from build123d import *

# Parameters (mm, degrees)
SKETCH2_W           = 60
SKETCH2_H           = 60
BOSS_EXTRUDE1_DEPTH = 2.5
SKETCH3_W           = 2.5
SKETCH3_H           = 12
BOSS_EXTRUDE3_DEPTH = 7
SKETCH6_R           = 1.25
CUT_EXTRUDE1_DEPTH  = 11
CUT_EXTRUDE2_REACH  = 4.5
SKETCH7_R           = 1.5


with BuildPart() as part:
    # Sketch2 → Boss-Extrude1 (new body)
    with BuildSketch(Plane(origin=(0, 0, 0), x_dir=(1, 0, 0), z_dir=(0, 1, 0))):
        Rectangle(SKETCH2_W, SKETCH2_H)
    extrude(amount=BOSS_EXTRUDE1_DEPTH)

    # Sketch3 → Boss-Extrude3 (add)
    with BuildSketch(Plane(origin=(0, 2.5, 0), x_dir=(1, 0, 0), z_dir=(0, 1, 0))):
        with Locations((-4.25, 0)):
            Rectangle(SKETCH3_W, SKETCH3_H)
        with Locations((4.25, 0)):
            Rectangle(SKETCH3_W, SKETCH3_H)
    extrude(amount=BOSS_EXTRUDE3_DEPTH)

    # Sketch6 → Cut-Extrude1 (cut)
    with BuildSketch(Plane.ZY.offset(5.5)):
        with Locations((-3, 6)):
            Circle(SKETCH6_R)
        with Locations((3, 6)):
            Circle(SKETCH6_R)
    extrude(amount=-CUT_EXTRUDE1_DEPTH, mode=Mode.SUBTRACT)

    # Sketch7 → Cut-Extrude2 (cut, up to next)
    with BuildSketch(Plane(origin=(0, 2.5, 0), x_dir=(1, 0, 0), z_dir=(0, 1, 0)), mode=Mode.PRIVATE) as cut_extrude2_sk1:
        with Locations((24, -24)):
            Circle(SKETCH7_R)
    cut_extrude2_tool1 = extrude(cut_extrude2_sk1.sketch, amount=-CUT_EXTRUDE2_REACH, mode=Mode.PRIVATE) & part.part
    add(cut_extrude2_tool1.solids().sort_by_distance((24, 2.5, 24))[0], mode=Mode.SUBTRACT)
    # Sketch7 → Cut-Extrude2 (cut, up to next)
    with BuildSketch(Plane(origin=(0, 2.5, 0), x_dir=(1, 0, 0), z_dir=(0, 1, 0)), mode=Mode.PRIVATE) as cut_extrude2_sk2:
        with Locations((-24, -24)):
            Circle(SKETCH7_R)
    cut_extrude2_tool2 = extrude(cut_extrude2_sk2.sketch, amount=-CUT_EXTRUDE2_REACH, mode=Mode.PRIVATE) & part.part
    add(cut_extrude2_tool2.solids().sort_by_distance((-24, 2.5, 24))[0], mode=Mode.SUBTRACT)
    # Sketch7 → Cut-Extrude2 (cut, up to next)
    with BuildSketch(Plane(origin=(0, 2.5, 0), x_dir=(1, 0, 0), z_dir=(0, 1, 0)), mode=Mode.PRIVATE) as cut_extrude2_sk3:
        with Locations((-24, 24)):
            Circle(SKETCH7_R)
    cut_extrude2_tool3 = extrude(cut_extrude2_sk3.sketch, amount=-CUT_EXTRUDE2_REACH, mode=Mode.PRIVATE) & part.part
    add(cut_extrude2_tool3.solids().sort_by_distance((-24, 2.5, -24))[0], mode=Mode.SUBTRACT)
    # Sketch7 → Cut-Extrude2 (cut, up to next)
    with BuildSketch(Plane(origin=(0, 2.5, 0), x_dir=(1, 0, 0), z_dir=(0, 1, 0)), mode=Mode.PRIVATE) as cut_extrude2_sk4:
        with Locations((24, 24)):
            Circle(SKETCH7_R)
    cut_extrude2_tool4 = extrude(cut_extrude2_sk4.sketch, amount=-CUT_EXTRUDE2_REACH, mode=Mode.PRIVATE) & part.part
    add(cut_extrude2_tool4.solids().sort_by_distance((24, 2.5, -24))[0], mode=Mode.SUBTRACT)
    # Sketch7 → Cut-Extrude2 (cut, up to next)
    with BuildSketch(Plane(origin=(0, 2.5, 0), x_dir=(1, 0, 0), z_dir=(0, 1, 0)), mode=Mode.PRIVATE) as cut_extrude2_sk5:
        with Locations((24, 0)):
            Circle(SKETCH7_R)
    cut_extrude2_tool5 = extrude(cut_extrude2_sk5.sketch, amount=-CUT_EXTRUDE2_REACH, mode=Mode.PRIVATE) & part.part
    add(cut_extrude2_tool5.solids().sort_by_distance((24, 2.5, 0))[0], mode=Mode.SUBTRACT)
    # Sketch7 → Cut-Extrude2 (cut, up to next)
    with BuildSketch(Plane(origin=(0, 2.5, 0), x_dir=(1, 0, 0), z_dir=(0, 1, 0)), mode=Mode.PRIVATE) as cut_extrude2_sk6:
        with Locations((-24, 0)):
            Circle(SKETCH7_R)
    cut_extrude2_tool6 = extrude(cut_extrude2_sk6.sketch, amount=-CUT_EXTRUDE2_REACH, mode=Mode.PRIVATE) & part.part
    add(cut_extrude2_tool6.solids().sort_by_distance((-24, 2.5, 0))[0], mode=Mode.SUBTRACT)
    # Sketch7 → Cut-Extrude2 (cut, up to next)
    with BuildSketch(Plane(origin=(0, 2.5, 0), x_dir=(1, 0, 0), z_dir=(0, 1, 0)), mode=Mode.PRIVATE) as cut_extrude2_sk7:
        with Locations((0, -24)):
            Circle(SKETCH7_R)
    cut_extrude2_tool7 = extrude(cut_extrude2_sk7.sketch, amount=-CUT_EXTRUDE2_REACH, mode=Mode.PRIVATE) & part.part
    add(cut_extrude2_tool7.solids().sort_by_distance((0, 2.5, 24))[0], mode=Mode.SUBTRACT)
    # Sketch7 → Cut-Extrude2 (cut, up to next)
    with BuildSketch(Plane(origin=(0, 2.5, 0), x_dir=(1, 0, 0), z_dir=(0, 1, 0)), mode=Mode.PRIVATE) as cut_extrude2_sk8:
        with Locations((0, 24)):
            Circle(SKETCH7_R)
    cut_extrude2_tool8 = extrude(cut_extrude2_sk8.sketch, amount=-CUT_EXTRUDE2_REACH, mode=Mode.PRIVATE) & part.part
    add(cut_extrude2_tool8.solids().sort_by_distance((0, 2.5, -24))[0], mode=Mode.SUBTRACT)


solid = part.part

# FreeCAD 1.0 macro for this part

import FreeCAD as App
import Part
import Sketcher


def add_polygon(sketch, points):
    """Adds a closed chain of lines whose ends are joined by coincident constraints."""
    first, n = sketch.GeometryCount, len(points)
    for a, b in zip(points, points[1:] + points[:1]):
        sketch.addGeometry(Part.LineSegment(App.Vector(*a, 0), App.Vector(*b, 0)), False)
    for i in range(n):
        sketch.addConstraint(Sketcher.Constraint("Coincident", first + i, 2, first + (i + 1) % n, 1))

doc = App.newDocument("Part")
params = doc.addObject("Spreadsheet::Sheet", "Params")
for row, (alias, value) in enumerate([
    ("sketch1_width", "60 mm"),
    ("pad1_length", "2.5 mm"),
    ("sketch2_height", "12 mm"),
    ("sketch2_width", "2.5 mm"),
    ("pad2_length", "7 mm"),
    ("sketch3_diameter", "2.5 mm"),
    ("pocket1_length", "11 mm"),
    ("sketch4_diameter", "3 mm"),
    ("sketch5_diameter", "3 mm"),
    ("sketch6_diameter", "3 mm"),
    ("sketch7_diameter", "3 mm"),
    ("sketch8_diameter", "3 mm"),
    ("sketch9_diameter", "3 mm"),
    ("sketch10_diameter", "3 mm"),
    ("sketch11_diameter", "3 mm"),
], start=1):
    params.set(f"A{row}", alias)
    params.set(f"B{row}", "=" + value)
    params.setAlias(f"B{row}", alias)

body = doc.addObject("PartDesign::Body", "Body")

# Sketch on XZ plane
sketch1 = body.newObject("Sketcher::SketchObject", "Sketch")
sketch1.AttachmentSupport = (doc.getObject("XZ_Plane"), [""])
sketch1.MapMode = "FlatFace"
add_polygon(sketch1, [(-30, -30), (-30, 30), (30, 30), (30, -30)])  # lines 0-3
sketch1.addConstraint(Sketcher.Constraint("Vertical", 0))
sketch1.addConstraint(Sketcher.Constraint("Horizontal", 1))
sketch1.addConstraint(Sketcher.Constraint("Vertical", 2))
sketch1.addConstraint(Sketcher.Constraint("Horizontal", 3))
sketch1.addConstraint(Sketcher.Constraint("Symmetric", 0, 2, 2, 2, -1, 1))
sketch1.addConstraint(Sketcher.Constraint("Equal", 3, 0))
sketch1.addConstraint(Sketcher.Constraint("DistanceX", 1, 1, 1, 2, 60.0))
sketch1.setExpression("Constraints[10]", "Params.sketch1_width")
pad1 = body.newObject("PartDesign::Pad", "Pad")
pad1.Profile = sketch1
pad1.setExpression("Length", "Params.pad1_length")
pad1.Reversed = True

# Sketch on XZ plane
sketch2 = body.newObject("Sketcher::SketchObject", "Sketch001")
sketch2.AttachmentSupport = (doc.getObject("XZ_Plane"), [""])
sketch2.MapMode = "FlatFace"
sketch2.AttachmentOffset = App.Placement(App.Vector(0, 0, -2.5), App.Rotation())
add_polygon(sketch2, [(-5.5, -6), (-5.5, 6), (-3, 6), (-3, -6)])  # lines 0-3
add_polygon(sketch2, [(3, -6), (3, 6), (5.5, 6), (5.5, -6)])  # lines 4-7
sketch2.addConstraint(Sketcher.Constraint("Vertical", 0))
sketch2.addConstraint(Sketcher.Constraint("Horizontal", 1))
sketch2.addConstraint(Sketcher.Constraint("Vertical", 2))
sketch2.addConstraint(Sketcher.Constraint("Horizontal", 3))
sketch2.addConstraint(Sketcher.Constraint("Vertical", 4))
sketch2.addConstraint(Sketcher.Constraint("Horizontal", 5))
sketch2.addConstraint(Sketcher.Constraint("Vertical", 6))
sketch2.addConstraint(Sketcher.Constraint("Horizontal", 7))
sketch2.addConstraint(Sketcher.Constraint("Symmetric", 2, 2, 4, 2, -1, 1))
sketch2.addConstraint(Sketcher.Constraint("Symmetric", 0, 2, 6, 2, -1, 1))
sketch2.addConstraint(Sketcher.Constraint("Horizontal", 1, 2, 4, 2))
sketch2.addConstraint(Sketcher.Constraint("DistanceY", 0, 1, 0, 2, 12.0))
sketch2.addConstraint(Sketcher.Constraint("DistanceX", 1, 1, 1, 2, 2.5))
sketch2.addConstraint(Sketcher.Constraint("DistanceX", 1, 2, -1, 1, 3.0))
sketch2.setExpression("Constraints[19]", "Params.sketch2_height")
sketch2.setExpression("Constraints[20]", "Params.sketch2_width")
pad2 = body.newObject("PartDesign::Pad", "Pad001")
pad2.Profile = sketch2
pad2.setExpression("Length", "Params.pad2_length")
pad2.Reversed = True

# Sketch on YZ plane
sketch3 = body.newObject("Sketcher::SketchObject", "Sketch002")
sketch3.AttachmentSupport = (doc.getObject("YZ_Plane"), [""])
sketch3.MapMode = "FlatFace"
sketch3.AttachmentOffset = App.Placement(App.Vector(0, 0, -5.5), App.Rotation())
sketch3.addGeometry(Part.Circle(App.Vector(6, -3, 0), App.Vector(0, 0, 1), 1.25), False)
sketch3.addGeometry(Part.Circle(App.Vector(6, 3, 0), App.Vector(0, 0, 1), 1.25), False)
sketch3.addConstraint(Sketcher.Constraint("Equal", 0, 1))
sketch3.addConstraint(Sketcher.Constraint("Symmetric", 0, 3, 1, 3, -1))
sketch3.addConstraint(Sketcher.Constraint("Diameter", 0, 2.5))
sketch3.addConstraint(Sketcher.Constraint("DistanceX", -1, 1, 0, 3, 6.0))
sketch3.addConstraint(Sketcher.Constraint("DistanceY", 0, 3, -1, 1, 3.0))
sketch3.setExpression("Constraints[2]", "Params.sketch3_diameter")
pocket1 = body.newObject("PartDesign::Pocket", "Pocket")
pocket1.Profile = sketch3
pocket1.setExpression("Length", "Params.pocket1_length")
pocket1.Reversed = True

# Sketch on XZ plane
sketch4 = body.newObject("Sketcher::SketchObject", "Sketch003")
sketch4.AttachmentSupport = (doc.getObject("XZ_Plane"), [""])
sketch4.MapMode = "FlatFace"
sketch4.AttachmentOffset = App.Placement(App.Vector(0, 0, -2.5), App.Rotation())
sketch4.addGeometry(Part.Circle(App.Vector(24, 24, 0), App.Vector(0, 0, 1), 1.5), False)
sketch4.addConstraint(Sketcher.Constraint("Diameter", 0, 3.0))
sketch4.addConstraint(Sketcher.Constraint("DistanceX", -1, 1, 0, 3, 24.0))
sketch4.addConstraint(Sketcher.Constraint("DistanceY", -1, 1, 0, 3, 24.0))
sketch4.setExpression("Constraints[0]", "Params.sketch4_diameter")
pocket2 = body.newObject("PartDesign::Pocket", "Pocket001")
pocket2.Profile = sketch4
pocket2.Type = "UpToFirst"
pocket2.Reversed = True

# Sketch on XZ plane
sketch5 = body.newObject("Sketcher::SketchObject", "Sketch004")
sketch5.AttachmentSupport = (doc.getObject("XZ_Plane"), [""])
sketch5.MapMode = "FlatFace"
sketch5.AttachmentOffset = App.Placement(App.Vector(0, 0, -2.5), App.Rotation())
sketch5.addGeometry(Part.Circle(App.Vector(-24, 24, 0), App.Vector(0, 0, 1), 1.5), False)
sketch5.addConstraint(Sketcher.Constraint("Diameter", 0, 3.0))
sketch5.addConstraint(Sketcher.Constraint("DistanceX", 0, 3, -1, 1, 24.0))
sketch5.addConstraint(Sketcher.Constraint("DistanceY", -1, 1, 0, 3, 24.0))
sketch5.setExpression("Constraints[0]", "Params.sketch5_diameter")
pocket3 = body.newObject("PartDesign::Pocket", "Pocket002")
pocket3.Profile = sketch5
pocket3.Type = "UpToFirst"
pocket3.Reversed = True

# Sketch on XZ plane
sketch6 = body.newObject("Sketcher::SketchObject", "Sketch005")
sketch6.AttachmentSupport = (doc.getObject("XZ_Plane"), [""])
sketch6.MapMode = "FlatFace"
sketch6.AttachmentOffset = App.Placement(App.Vector(0, 0, -2.5), App.Rotation())
sketch6.addGeometry(Part.Circle(App.Vector(-24, -24, 0), App.Vector(0, 0, 1), 1.5), False)
sketch6.addConstraint(Sketcher.Constraint("Diameter", 0, 3.0))
sketch6.addConstraint(Sketcher.Constraint("DistanceX", 0, 3, -1, 1, 24.0))
sketch6.addConstraint(Sketcher.Constraint("DistanceY", 0, 3, -1, 1, 24.0))
sketch6.setExpression("Constraints[0]", "Params.sketch6_diameter")
pocket4 = body.newObject("PartDesign::Pocket", "Pocket003")
pocket4.Profile = sketch6
pocket4.Type = "UpToFirst"
pocket4.Reversed = True

# Sketch on XZ plane
sketch7 = body.newObject("Sketcher::SketchObject", "Sketch006")
sketch7.AttachmentSupport = (doc.getObject("XZ_Plane"), [""])
sketch7.MapMode = "FlatFace"
sketch7.AttachmentOffset = App.Placement(App.Vector(0, 0, -2.5), App.Rotation())
sketch7.addGeometry(Part.Circle(App.Vector(24, -24, 0), App.Vector(0, 0, 1), 1.5), False)
sketch7.addConstraint(Sketcher.Constraint("Diameter", 0, 3.0))
sketch7.addConstraint(Sketcher.Constraint("DistanceX", -1, 1, 0, 3, 24.0))
sketch7.addConstraint(Sketcher.Constraint("DistanceY", 0, 3, -1, 1, 24.0))
sketch7.setExpression("Constraints[0]", "Params.sketch7_diameter")
pocket5 = body.newObject("PartDesign::Pocket", "Pocket004")
pocket5.Profile = sketch7
pocket5.Type = "UpToFirst"
pocket5.Reversed = True

# Sketch on XZ plane
sketch8 = body.newObject("Sketcher::SketchObject", "Sketch007")
sketch8.AttachmentSupport = (doc.getObject("XZ_Plane"), [""])
sketch8.MapMode = "FlatFace"
sketch8.AttachmentOffset = App.Placement(App.Vector(0, 0, -2.5), App.Rotation())
sketch8.addGeometry(Part.Circle(App.Vector(24, 0, 0), App.Vector(0, 0, 1), 1.5), False)
sketch8.addConstraint(Sketcher.Constraint("PointOnObject", 0, 3, -1))
sketch8.addConstraint(Sketcher.Constraint("Diameter", 0, 3.0))
sketch8.addConstraint(Sketcher.Constraint("DistanceX", -1, 1, 0, 3, 24.0))
sketch8.setExpression("Constraints[1]", "Params.sketch8_diameter")
pocket6 = body.newObject("PartDesign::Pocket", "Pocket005")
pocket6.Profile = sketch8
pocket6.Type = "UpToFirst"
pocket6.Reversed = True

# Sketch on XZ plane
sketch9 = body.newObject("Sketcher::SketchObject", "Sketch008")
sketch9.AttachmentSupport = (doc.getObject("XZ_Plane"), [""])
sketch9.MapMode = "FlatFace"
sketch9.AttachmentOffset = App.Placement(App.Vector(0, 0, -2.5), App.Rotation())
sketch9.addGeometry(Part.Circle(App.Vector(-24, 0, 0), App.Vector(0, 0, 1), 1.5), False)
sketch9.addConstraint(Sketcher.Constraint("PointOnObject", 0, 3, -1))
sketch9.addConstraint(Sketcher.Constraint("Diameter", 0, 3.0))
sketch9.addConstraint(Sketcher.Constraint("DistanceX", 0, 3, -1, 1, 24.0))
sketch9.setExpression("Constraints[1]", "Params.sketch9_diameter")
pocket7 = body.newObject("PartDesign::Pocket", "Pocket006")
pocket7.Profile = sketch9
pocket7.Type = "UpToFirst"
pocket7.Reversed = True

# Sketch on XZ plane
sketch10 = body.newObject("Sketcher::SketchObject", "Sketch009")
sketch10.AttachmentSupport = (doc.getObject("XZ_Plane"), [""])
sketch10.MapMode = "FlatFace"
sketch10.AttachmentOffset = App.Placement(App.Vector(0, 0, -2.5), App.Rotation())
sketch10.addGeometry(Part.Circle(App.Vector(0, 24, 0), App.Vector(0, 0, 1), 1.5), False)
sketch10.addConstraint(Sketcher.Constraint("PointOnObject", 0, 3, -2))
sketch10.addConstraint(Sketcher.Constraint("Diameter", 0, 3.0))
sketch10.addConstraint(Sketcher.Constraint("DistanceY", -1, 1, 0, 3, 24.0))
sketch10.setExpression("Constraints[1]", "Params.sketch10_diameter")
pocket8 = body.newObject("PartDesign::Pocket", "Pocket007")
pocket8.Profile = sketch10
pocket8.Type = "UpToFirst"
pocket8.Reversed = True

# Sketch on XZ plane
sketch11 = body.newObject("Sketcher::SketchObject", "Sketch010")
sketch11.AttachmentSupport = (doc.getObject("XZ_Plane"), [""])
sketch11.MapMode = "FlatFace"
sketch11.AttachmentOffset = App.Placement(App.Vector(0, 0, -2.5), App.Rotation())
sketch11.addGeometry(Part.Circle(App.Vector(0, -24, 0), App.Vector(0, 0, 1), 1.5), False)
sketch11.addConstraint(Sketcher.Constraint("PointOnObject", 0, 3, -2))
sketch11.addConstraint(Sketcher.Constraint("Diameter", 0, 3.0))
sketch11.addConstraint(Sketcher.Constraint("DistanceY", 0, 3, -1, 1, 24.0))
sketch11.setExpression("Constraints[1]", "Params.sketch11_diameter")
pocket9 = body.newObject("PartDesign::Pocket", "Pocket008")
pocket9.Profile = sketch11
pocket9.Type = "UpToFirst"
pocket9.Reversed = True

doc.recompute()
